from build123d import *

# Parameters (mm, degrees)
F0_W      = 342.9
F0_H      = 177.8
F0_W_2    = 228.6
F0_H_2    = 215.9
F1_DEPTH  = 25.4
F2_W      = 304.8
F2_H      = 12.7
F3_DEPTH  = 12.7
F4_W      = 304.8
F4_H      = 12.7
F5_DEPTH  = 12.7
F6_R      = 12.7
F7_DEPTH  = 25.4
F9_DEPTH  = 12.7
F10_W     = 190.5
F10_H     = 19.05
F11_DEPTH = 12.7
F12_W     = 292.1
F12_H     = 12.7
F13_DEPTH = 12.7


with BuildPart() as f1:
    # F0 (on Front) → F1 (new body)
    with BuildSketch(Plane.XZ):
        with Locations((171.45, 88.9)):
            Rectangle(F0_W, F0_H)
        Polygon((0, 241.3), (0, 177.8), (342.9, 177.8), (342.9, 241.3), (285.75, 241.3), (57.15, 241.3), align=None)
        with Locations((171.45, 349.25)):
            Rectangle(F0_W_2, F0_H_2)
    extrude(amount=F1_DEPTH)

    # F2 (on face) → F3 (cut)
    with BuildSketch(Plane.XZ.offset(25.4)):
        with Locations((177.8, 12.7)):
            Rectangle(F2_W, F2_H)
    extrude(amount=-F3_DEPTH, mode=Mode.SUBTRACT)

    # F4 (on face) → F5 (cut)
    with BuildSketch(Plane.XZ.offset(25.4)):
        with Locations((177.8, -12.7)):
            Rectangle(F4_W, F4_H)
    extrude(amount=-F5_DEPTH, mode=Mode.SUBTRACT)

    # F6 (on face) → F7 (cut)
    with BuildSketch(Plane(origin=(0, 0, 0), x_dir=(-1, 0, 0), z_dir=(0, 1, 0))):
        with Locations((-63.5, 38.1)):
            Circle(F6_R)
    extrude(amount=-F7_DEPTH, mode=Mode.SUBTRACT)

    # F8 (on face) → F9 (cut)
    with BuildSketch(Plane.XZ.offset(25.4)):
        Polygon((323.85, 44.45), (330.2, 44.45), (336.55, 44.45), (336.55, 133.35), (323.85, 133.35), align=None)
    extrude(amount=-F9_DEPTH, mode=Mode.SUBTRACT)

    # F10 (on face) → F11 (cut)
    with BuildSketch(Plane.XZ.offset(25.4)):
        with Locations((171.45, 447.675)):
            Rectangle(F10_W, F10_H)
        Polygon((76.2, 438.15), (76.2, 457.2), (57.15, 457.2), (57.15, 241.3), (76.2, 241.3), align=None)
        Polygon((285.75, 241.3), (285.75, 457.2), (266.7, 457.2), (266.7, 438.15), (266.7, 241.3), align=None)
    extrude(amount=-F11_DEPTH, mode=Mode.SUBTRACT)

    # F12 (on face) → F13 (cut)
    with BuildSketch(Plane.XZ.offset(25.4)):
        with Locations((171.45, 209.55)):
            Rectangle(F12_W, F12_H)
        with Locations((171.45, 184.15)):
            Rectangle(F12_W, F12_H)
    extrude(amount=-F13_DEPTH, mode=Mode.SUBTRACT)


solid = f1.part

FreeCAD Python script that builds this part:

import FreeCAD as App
import Part
import Sketcher

V = App.Vector
Q = App.Units.Quantity

doc = App.newDocument("Part")
body = doc.addObject("PartDesign::Body", "Body")

# Sketch on XZ plane
sketch1 = body.newObject("Sketcher::SketchObject", "Sketch")
sketch1.AttachmentSupport = (doc.getObject("XZ_Plane"), [""])
sketch1.MapMode = "FlatFace"
sketch1.addGeometry([
    Part.LineSegment(V(0, 0, 0), V(342.9, 0, 0)),  # 0
    Part.LineSegment(V(342.9, 0, 0), V(342.9, 241.3, 0)),  # 1
    Part.LineSegment(V(342.9, 241.3, 0), V(285.75, 241.3, 0)),  # 2
    Part.LineSegment(V(285.75, 241.3, 0), V(285.75, 457.2, 0)),  # 3
    Part.LineSegment(V(285.75, 457.2, 0), V(57.15, 457.2, 0)),  # 4
    Part.LineSegment(V(57.15, 457.2, 0), V(57.15, 241.3, 0)),  # 5
    Part.LineSegment(V(57.15, 241.3, 0), V(0, 241.3, 0)),  # 6
    Part.LineSegment(V(0, 241.3, 0), V(0, 0, 0)),  # 7
], False)
sketch1.addConstraint([
    Sketcher.Constraint("Coincident", 0, 2, 1, 1),
    Sketcher.Constraint("Coincident", 1, 2, 2, 1),
    Sketcher.Constraint("Coincident", 2, 2, 3, 1),
    Sketcher.Constraint("Coincident", 3, 2, 4, 1),
    Sketcher.Constraint("Coincident", 4, 2, 5, 1),
    Sketcher.Constraint("Coincident", 5, 2, 6, 1),
    Sketcher.Constraint("Coincident", 6, 2, 7, 1),
    Sketcher.Constraint("Coincident", 7, 2, 0, 1),
    Sketcher.Constraint("Horizontal", 0),
    Sketcher.Constraint("Vertical", 1),
    Sketcher.Constraint("Horizontal", 2),
    Sketcher.Constraint("Vertical", 3),
    Sketcher.Constraint("Horizontal", 4),
    Sketcher.Constraint("Vertical", 5),
    Sketcher.Constraint("Horizontal", 6),
    Sketcher.Constraint("Vertical", 7),
    Sketcher.Constraint("Coincident", 7, 2, -1, 1),
    Sketcher.Constraint("Horizontal", 2, 2, 5, 2),
    Sketcher.Constraint("Equal", 2, 6),
    Sketcher.Constraint("DistanceX", 4, 2, 4, 1, Q("9 in")),
    Sketcher.Constraint("DistanceX", 0, 1, 0, 2, Q("13.5 in")),
    Sketcher.Constraint("DistanceY", 1, 1, 1, 2, Q("9.5 in")),
    Sketcher.Constraint("DistanceY", 3, 1, 3, 2, Q("8.5 in")),
])
pad1 = body.newObject("PartDesign::Pad", "Pad")
pad1.Profile = sketch1
pad1.Length = Q("1 in")

# Sketch on XZ plane
sketch2 = body.newObject("Sketcher::SketchObject", "Sketch001")
sketch2.AttachmentSupport = (doc.getObject("XZ_Plane"), [""])
sketch2.MapMode = "FlatFace"
sketch2.AttachmentOffset = App.Placement(V(0, 0, 1 * 25.4), App.Rotation())
sketch2.addGeometry([
    Part.LineSegment(V(25.4, 19.05, 0), V(25.4, 6.35, 0)),
    Part.LineSegment(V(25.4, 6.35, 0), V(330.2, 6.35, 0)),
    Part.LineSegment(V(330.2, 6.35, 0), V(330.2, 19.05, 0)),
    Part.LineSegment(V(330.2, 19.05, 0), V(25.4, 19.05, 0)),
], False)
sketch2.addConstraint([
    Sketcher.Constraint("Coincident", 0, 2, 1, 1),
    Sketcher.Constraint("Coincident", 1, 2, 2, 1),
    Sketcher.Constraint("Coincident", 2, 2, 3, 1),
    Sketcher.Constraint("Coincident", 3, 2, 0, 1),
    Sketcher.Constraint("Vertical", 0),
    Sketcher.Constraint("Horizontal", 1),
    Sketcher.Constraint("Vertical", 2),
    Sketcher.Constraint("Horizontal", 3),
    Sketcher.Constraint("DistanceX", 1, 1, 1, 2, Q("12 in")),
    Sketcher.Constraint("DistanceY", 0, 2, 0, 1, Q("0.5 in")),
    Sketcher.Constraint("DistanceX", -1, 1, 0, 2, Q("1 in")),
    Sketcher.Constraint("DistanceY", -1, 1, 0, 2, Q("0.25 in")),
])
pocket1 = body.newObject("PartDesign::Pocket", "Pocket")
pocket1.Profile = sketch2
pocket1.Length = Q("0.5 in")

# Sketch on XZ plane
sketch3 = body.newObject("Sketcher::SketchObject", "Sketch002")
sketch3.AttachmentSupport = (doc.getObject("XZ_Plane"), [""])
sketch3.MapMode = "FlatFace"
sketch3.AttachmentOffset = App.Placement(V(0, 0, 1 * 25.4), App.Rotation())
sketch3.addGeometry([
    Part.LineSegment(V(25.4, -6.35, 0), V(25.4, -19.05, 0)),
    Part.LineSegment(V(25.4, -19.05, 0), V(330.2, -19.05, 0)),
    Part.LineSegment(V(330.2, -19.05, 0), V(330.2, -6.35, 0)),
    Part.LineSegment(V(330.2, -6.35, 0), V(25.4, -6.35, 0)),
], False)
sketch3.addConstraint([
    Sketcher.Constraint("Coincident", 0, 2, 1, 1),
    Sketcher.Constraint("Coincident", 1, 2, 2, 1),
    Sketcher.Constraint("Coincident", 2, 2, 3, 1),
    Sketcher.Constraint("Coincident", 3, 2, 0, 1),
    Sketcher.Constraint("Vertical", 0),
    Sketcher.Constraint("Horizontal", 1),
    Sketcher.Constraint("Vertical", 2),
    Sketcher.Constraint("Horizontal", 3),
    Sketcher.Constraint("DistanceX", 1, 1, 1, 2, Q("12 in")),
    Sketcher.Constraint("DistanceY", 0, 2, 0, 1, Q("0.5 in")),
    Sketcher.Constraint("DistanceX", -1, 1, 0, 2, Q("1 in")),
    Sketcher.Constraint("DistanceY", 0, 2, -1, 1, Q("0.75 in")),
])
pocket2 = body.newObject("PartDesign::Pocket", "Pocket001")
pocket2.Profile = sketch3
pocket2.Length = Q("0.5 in")

# Sketch on XZ plane
sketch4 = body.newObject("Sketcher::SketchObject", "Sketch003")
sketch4.AttachmentSupport = (doc.getObject("XZ_Plane"), [""])
sketch4.MapMode = "FlatFace"
sketch4.addGeometry(Part.Circle(V(63.5, 38.1, 0), V(0, 0, 1), 12.7), False)
sketch4.addConstraint([
    Sketcher.Constraint("Diameter", 0, Q("1 in")),
    Sketcher.Constraint("DistanceX", -1, 1, 0, 3, Q("2.5 in")),
    Sketcher.Constraint("DistanceY", -1, 1, 0, 3, Q("1.5 in")),
])
pocket3 = body.newObject("PartDesign::Pocket", "Pocket002")
pocket3.Profile = sketch4
pocket3.Length = Q("1 in")
pocket3.Reversed = True

# Sketch on XZ plane
sketch5 = body.newObject("Sketcher::SketchObject", "Sketch004")
sketch5.AttachmentSupport = (doc.getObject("XZ_Plane"), [""])
sketch5.MapMode = "FlatFace"
sketch5.AttachmentOffset = App.Placement(V(0, 0, 1 * 25.4), App.Rotation())
sketch5.addGeometry([
    Part.LineSegment(V(323.85, 44.45, 0), V(336.55, 44.45, 0)),
    Part.LineSegment(V(336.55, 44.45, 0), V(336.55, 133.35, 0)),
    Part.LineSegment(V(336.55, 133.35, 0), V(323.85, 133.35, 0)),
    Part.LineSegment(V(323.85, 133.35, 0), V(323.85, 44.45, 0)),
], False)
sketch5.addConstraint([
    Sketcher.Constraint("Coincident", 0, 2, 1, 1),
    Sketcher.Constraint("Coincident", 1, 2, 2, 1),
    Sketcher.Constraint("Coincident", 2, 2, 3, 1),
    Sketcher.Constraint("Coincident", 3, 2, 0, 1),
    Sketcher.Constraint("Horizontal", 0),
    Sketcher.Constraint("Vertical", 1),
    Sketcher.Constraint("Horizontal", 2),
    Sketcher.Constraint("Vertical", 3),
    Sketcher.Constraint("DistanceX", 0, 1, 0, 2, Q("0.5 in")),
    Sketcher.Constraint("DistanceY", 1, 1, 1, 2, Q("3.5 in")),
    Sketcher.Constraint("DistanceX", -1, 1, 0, 2, Q("13.25 in")),
    Sketcher.Constraint("DistanceY", -1, 1, 0, 2, Q("1.75 in")),
])
pocket4 = body.newObject("PartDesign::Pocket", "Pocket003")
pocket4.Profile = sketch5
pocket4.Length = Q("0.5 in")

# Sketch on XZ plane
sketch6 = body.newObject("Sketcher::SketchObject", "Sketch005")
sketch6.AttachmentSupport = (doc.getObject("XZ_Plane"), [""])
sketch6.MapMode = "FlatFace"
sketch6.AttachmentOffset = App.Placement(V(0, 0, 1 * 25.4), App.Rotation())
sketch6.addGeometry([
    Part.LineSegment(V(76.2, 438.15, 0), V(266.7, 438.15, 0)),  # 0
    Part.LineSegment(V(266.7, 438.15, 0), V(266.7, 241.3, 0)),  # 1
    Part.LineSegment(V(266.7, 241.3, 0), V(285.75, 241.3, 0)),  # 2
    Part.LineSegment(V(285.75, 241.3, 0), V(285.75, 457.2, 0)),  # 3
    Part.LineSegment(V(285.75, 457.2, 0), V(57.15, 457.2, 0)),  # 4
    Part.LineSegment(V(57.15, 457.2, 0), V(57.15, 241.3, 0)),  # 5
    Part.LineSegment(V(57.15, 241.3, 0), V(76.2, 241.3, 0)),  # 6
    Part.LineSegment(V(76.2, 241.3, 0), V(76.2, 438.15, 0)),  # 7
], False)
sketch6.addConstraint([
    Sketcher.Constraint("Coincident", 0, 2, 1, 1),
    Sketcher.Constraint("Coincident", 1, 2, 2, 1),
    Sketcher.Constraint("Coincident", 2, 2, 3, 1),
    Sketcher.Constraint("Coincident", 3, 2, 4, 1),
    Sketcher.Constraint("Coincident", 4, 2, 5, 1),
    Sketcher.Constraint("Coincident", 5, 2, 6, 1),
    Sketcher.Constraint("Coincident", 6, 2, 7, 1),
    Sketcher.Constraint("Coincident", 7, 2, 0, 1),
    Sketcher.Constraint("Horizontal", 0),
    Sketcher.Constraint("Vertical", 1),
    Sketcher.Constraint("Horizontal", 2),
    Sketcher.Constraint("Vertical", 3),
    Sketcher.Constraint("Horizontal", 4),
    Sketcher.Constraint("Vertical", 5),
    Sketcher.Constraint("Horizontal", 6),
    Sketcher.Constraint("Vertical", 7),
    Sketcher.Constraint("Horizontal", 2, 2, 5, 2),
    Sketcher.Constraint("Equal", 2, 6),
    Sketcher.Constraint("DistanceX", 4, 2, 4, 1, Q("9 in")),
    Sketcher.Constraint("DistanceX", 0, 1, 0, 2, Q("7.5 in")),
    Sketcher.Constraint("DistanceY", 3, 1, 3, 2, Q("8.5 in")),
    Sketcher.Constraint("DistanceY", -1, 1, 3, 2, Q("18 in")),
    Sketcher.Constraint("DistanceX", -1, 1, 6, 2, Q("3 in")),
    Sketcher.Constraint("DistanceY", 1, 2, 1, 1, Q("7.75 in")),
])
pocket5 = body.newObject("PartDesign::Pocket", "Pocket004")
pocket5.Profile = sketch6
pocket5.Length = Q("0.5 in")

# Sketch on XZ plane
sketch7 = body.newObject("Sketcher::SketchObject", "Sketch006")
sketch7.AttachmentSupport = (doc.getObject("XZ_Plane"), [""])
sketch7.MapMode = "FlatFace"
sketch7.AttachmentOffset = App.Placement(V(0, 0, 1 * 25.4), App.Rotation())
sketch7.addGeometry([
    Part.LineSegment(V(25.4, 215.9, 0), V(25.4, 203.2, 0)),  # 0
    Part.LineSegment(V(25.4, 203.2, 0), V(317.5, 203.2, 0)),  # 1
    Part.LineSegment(V(317.5, 203.2, 0), V(317.5, 215.9, 0)),  # 2
    Part.LineSegment(V(317.5, 215.9, 0), V(25.4, 215.9, 0)),  # 3
    Part.LineSegment(V(25.4, 190.5, 0), V(25.4, 177.8, 0)),  # 4
    Part.LineSegment(V(25.4, 177.8, 0), V(317.5, 177.8, 0)),  # 5
    Part.LineSegment(V(317.5, 177.8, 0), V(317.5, 190.5, 0)),  # 6
    Part.LineSegment(V(317.5, 190.5, 0), V(25.4, 190.5, 0)),  # 7
], False)
sketch7.addConstraint([
    Sketcher.Constraint("Coincident", 0, 2, 1, 1),
    Sketcher.Constraint("Coincident", 1, 2, 2, 1),
    Sketcher.Constraint("Coincident", 2, 2, 3, 1),
    Sketcher.Constraint("Coincident", 3, 2, 0, 1),
    Sketcher.Constraint("Coincident", 4, 2, 5, 1),
    Sketcher.Constraint("Coincident", 5, 2, 6, 1),
    Sketcher.Constraint("Coincident", 6, 2, 7, 1),
    Sketcher.Constraint("Coincident", 7, 2, 4, 1),
    Sketcher.Constraint("Vertical", 0),
    Sketcher.Constraint("Horizontal", 1),
    Sketcher.Constraint("Vertical", 2),
    Sketcher.Constraint("Horizontal", 3),
    Sketcher.Constraint("Vertical", 4),
    Sketcher.Constraint("Horizontal", 5),
    Sketcher.Constraint("Vertical", 6),
    Sketcher.Constraint("Horizontal", 7),
    Sketcher.Constraint("Vertical", 3, 2, 4, 2),
    Sketcher.Constraint("Vertical", 2, 2, 5, 2),
    Sketcher.Constraint("Equal", 2, 4),
    Sketcher.Constraint("DistanceX", 1, 1, 1, 2, Q("11.5 in")),
    Sketcher.Constraint("DistanceY", 0, 2, 0, 1, Q("0.5 in")),
    Sketcher.Constraint("DistanceX", -1, 1, 0, 2, Q("1 in")),
    Sketcher.Constraint("DistanceY", -1, 1, 0, 2, Q("8 in")),
    Sketcher.Constraint("DistanceY", -1, 1, 4, 2, Q("7 in")),
])
pocket6 = body.newObject("PartDesign::Pocket", "Pocket005")
pocket6.Profile = sketch7
pocket6.Length = Q("0.5 in")

doc.recompute()
